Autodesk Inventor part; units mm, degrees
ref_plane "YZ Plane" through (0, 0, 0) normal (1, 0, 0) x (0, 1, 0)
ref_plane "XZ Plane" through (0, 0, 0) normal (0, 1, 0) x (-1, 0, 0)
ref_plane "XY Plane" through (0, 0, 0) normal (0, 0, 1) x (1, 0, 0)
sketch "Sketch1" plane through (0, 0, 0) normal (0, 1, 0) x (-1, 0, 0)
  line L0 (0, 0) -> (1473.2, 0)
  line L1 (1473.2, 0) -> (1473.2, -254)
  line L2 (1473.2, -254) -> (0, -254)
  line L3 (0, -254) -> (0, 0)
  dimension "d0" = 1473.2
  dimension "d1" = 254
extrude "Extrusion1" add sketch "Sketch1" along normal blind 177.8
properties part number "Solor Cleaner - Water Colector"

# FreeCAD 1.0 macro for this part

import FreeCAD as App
import Part
import Sketcher
from FreeCAD import Vector
Q = App.Units.Quantity

doc = App.newDocument("Part")
body = doc.addObject("PartDesign::Body", "Body")

# Sketch on XZ plane
sketch1 = body.newObject("Sketcher::SketchObject", "Sketch")
sketch1.AttachmentSupport = (doc.getObject("XZ_Plane"), [""])
sketch1.MapMode = "FlatFace"
sketch1.addGeometry([
    Part.LineSegment(Vector(-1473.2, 0, 0), Vector(0, 0, 0)),
    Part.LineSegment(Vector(0, 0, 0), Vector(0, -254, 0)),
    Part.LineSegment(Vector(0, -254, 0), Vector(-1473.2, -254, 0)),
    Part.LineSegment(Vector(-1473.2, -254, 0), Vector(-1473.2, 0, 0)),
], False)
sketch1.addConstraint([
    Sketcher.Constraint("Coincident", 0, 2, 1, 1),
    Sketcher.Constraint("Coincident", 1, 2, 2, 1),
    Sketcher.Constraint("Coincident", 2, 2, 3, 1),
    Sketcher.Constraint("Coincident", 3, 2, 0, 1),
    Sketcher.Constraint("Horizontal", 0),
    Sketcher.Constraint("Vertical", 1),
    Sketcher.Constraint("Horizontal", 2),
    Sketcher.Constraint("Vertical", 3),
    Sketcher.Constraint("Coincident", 0, 2, -1, 1),
    Sketcher.Constraint("DistanceX", 0, 1, 0, 2, Q("58 in")),
    Sketcher.Constraint("DistanceY", 1, 2, 1, 1, Q("10 in")),
])
pad1 = body.newObject("PartDesign::Pad", "Pad")
pad1.Profile = sketch1
pad1.Length = Q("7 in")
pad1.Reversed = True

doc.recompute()
